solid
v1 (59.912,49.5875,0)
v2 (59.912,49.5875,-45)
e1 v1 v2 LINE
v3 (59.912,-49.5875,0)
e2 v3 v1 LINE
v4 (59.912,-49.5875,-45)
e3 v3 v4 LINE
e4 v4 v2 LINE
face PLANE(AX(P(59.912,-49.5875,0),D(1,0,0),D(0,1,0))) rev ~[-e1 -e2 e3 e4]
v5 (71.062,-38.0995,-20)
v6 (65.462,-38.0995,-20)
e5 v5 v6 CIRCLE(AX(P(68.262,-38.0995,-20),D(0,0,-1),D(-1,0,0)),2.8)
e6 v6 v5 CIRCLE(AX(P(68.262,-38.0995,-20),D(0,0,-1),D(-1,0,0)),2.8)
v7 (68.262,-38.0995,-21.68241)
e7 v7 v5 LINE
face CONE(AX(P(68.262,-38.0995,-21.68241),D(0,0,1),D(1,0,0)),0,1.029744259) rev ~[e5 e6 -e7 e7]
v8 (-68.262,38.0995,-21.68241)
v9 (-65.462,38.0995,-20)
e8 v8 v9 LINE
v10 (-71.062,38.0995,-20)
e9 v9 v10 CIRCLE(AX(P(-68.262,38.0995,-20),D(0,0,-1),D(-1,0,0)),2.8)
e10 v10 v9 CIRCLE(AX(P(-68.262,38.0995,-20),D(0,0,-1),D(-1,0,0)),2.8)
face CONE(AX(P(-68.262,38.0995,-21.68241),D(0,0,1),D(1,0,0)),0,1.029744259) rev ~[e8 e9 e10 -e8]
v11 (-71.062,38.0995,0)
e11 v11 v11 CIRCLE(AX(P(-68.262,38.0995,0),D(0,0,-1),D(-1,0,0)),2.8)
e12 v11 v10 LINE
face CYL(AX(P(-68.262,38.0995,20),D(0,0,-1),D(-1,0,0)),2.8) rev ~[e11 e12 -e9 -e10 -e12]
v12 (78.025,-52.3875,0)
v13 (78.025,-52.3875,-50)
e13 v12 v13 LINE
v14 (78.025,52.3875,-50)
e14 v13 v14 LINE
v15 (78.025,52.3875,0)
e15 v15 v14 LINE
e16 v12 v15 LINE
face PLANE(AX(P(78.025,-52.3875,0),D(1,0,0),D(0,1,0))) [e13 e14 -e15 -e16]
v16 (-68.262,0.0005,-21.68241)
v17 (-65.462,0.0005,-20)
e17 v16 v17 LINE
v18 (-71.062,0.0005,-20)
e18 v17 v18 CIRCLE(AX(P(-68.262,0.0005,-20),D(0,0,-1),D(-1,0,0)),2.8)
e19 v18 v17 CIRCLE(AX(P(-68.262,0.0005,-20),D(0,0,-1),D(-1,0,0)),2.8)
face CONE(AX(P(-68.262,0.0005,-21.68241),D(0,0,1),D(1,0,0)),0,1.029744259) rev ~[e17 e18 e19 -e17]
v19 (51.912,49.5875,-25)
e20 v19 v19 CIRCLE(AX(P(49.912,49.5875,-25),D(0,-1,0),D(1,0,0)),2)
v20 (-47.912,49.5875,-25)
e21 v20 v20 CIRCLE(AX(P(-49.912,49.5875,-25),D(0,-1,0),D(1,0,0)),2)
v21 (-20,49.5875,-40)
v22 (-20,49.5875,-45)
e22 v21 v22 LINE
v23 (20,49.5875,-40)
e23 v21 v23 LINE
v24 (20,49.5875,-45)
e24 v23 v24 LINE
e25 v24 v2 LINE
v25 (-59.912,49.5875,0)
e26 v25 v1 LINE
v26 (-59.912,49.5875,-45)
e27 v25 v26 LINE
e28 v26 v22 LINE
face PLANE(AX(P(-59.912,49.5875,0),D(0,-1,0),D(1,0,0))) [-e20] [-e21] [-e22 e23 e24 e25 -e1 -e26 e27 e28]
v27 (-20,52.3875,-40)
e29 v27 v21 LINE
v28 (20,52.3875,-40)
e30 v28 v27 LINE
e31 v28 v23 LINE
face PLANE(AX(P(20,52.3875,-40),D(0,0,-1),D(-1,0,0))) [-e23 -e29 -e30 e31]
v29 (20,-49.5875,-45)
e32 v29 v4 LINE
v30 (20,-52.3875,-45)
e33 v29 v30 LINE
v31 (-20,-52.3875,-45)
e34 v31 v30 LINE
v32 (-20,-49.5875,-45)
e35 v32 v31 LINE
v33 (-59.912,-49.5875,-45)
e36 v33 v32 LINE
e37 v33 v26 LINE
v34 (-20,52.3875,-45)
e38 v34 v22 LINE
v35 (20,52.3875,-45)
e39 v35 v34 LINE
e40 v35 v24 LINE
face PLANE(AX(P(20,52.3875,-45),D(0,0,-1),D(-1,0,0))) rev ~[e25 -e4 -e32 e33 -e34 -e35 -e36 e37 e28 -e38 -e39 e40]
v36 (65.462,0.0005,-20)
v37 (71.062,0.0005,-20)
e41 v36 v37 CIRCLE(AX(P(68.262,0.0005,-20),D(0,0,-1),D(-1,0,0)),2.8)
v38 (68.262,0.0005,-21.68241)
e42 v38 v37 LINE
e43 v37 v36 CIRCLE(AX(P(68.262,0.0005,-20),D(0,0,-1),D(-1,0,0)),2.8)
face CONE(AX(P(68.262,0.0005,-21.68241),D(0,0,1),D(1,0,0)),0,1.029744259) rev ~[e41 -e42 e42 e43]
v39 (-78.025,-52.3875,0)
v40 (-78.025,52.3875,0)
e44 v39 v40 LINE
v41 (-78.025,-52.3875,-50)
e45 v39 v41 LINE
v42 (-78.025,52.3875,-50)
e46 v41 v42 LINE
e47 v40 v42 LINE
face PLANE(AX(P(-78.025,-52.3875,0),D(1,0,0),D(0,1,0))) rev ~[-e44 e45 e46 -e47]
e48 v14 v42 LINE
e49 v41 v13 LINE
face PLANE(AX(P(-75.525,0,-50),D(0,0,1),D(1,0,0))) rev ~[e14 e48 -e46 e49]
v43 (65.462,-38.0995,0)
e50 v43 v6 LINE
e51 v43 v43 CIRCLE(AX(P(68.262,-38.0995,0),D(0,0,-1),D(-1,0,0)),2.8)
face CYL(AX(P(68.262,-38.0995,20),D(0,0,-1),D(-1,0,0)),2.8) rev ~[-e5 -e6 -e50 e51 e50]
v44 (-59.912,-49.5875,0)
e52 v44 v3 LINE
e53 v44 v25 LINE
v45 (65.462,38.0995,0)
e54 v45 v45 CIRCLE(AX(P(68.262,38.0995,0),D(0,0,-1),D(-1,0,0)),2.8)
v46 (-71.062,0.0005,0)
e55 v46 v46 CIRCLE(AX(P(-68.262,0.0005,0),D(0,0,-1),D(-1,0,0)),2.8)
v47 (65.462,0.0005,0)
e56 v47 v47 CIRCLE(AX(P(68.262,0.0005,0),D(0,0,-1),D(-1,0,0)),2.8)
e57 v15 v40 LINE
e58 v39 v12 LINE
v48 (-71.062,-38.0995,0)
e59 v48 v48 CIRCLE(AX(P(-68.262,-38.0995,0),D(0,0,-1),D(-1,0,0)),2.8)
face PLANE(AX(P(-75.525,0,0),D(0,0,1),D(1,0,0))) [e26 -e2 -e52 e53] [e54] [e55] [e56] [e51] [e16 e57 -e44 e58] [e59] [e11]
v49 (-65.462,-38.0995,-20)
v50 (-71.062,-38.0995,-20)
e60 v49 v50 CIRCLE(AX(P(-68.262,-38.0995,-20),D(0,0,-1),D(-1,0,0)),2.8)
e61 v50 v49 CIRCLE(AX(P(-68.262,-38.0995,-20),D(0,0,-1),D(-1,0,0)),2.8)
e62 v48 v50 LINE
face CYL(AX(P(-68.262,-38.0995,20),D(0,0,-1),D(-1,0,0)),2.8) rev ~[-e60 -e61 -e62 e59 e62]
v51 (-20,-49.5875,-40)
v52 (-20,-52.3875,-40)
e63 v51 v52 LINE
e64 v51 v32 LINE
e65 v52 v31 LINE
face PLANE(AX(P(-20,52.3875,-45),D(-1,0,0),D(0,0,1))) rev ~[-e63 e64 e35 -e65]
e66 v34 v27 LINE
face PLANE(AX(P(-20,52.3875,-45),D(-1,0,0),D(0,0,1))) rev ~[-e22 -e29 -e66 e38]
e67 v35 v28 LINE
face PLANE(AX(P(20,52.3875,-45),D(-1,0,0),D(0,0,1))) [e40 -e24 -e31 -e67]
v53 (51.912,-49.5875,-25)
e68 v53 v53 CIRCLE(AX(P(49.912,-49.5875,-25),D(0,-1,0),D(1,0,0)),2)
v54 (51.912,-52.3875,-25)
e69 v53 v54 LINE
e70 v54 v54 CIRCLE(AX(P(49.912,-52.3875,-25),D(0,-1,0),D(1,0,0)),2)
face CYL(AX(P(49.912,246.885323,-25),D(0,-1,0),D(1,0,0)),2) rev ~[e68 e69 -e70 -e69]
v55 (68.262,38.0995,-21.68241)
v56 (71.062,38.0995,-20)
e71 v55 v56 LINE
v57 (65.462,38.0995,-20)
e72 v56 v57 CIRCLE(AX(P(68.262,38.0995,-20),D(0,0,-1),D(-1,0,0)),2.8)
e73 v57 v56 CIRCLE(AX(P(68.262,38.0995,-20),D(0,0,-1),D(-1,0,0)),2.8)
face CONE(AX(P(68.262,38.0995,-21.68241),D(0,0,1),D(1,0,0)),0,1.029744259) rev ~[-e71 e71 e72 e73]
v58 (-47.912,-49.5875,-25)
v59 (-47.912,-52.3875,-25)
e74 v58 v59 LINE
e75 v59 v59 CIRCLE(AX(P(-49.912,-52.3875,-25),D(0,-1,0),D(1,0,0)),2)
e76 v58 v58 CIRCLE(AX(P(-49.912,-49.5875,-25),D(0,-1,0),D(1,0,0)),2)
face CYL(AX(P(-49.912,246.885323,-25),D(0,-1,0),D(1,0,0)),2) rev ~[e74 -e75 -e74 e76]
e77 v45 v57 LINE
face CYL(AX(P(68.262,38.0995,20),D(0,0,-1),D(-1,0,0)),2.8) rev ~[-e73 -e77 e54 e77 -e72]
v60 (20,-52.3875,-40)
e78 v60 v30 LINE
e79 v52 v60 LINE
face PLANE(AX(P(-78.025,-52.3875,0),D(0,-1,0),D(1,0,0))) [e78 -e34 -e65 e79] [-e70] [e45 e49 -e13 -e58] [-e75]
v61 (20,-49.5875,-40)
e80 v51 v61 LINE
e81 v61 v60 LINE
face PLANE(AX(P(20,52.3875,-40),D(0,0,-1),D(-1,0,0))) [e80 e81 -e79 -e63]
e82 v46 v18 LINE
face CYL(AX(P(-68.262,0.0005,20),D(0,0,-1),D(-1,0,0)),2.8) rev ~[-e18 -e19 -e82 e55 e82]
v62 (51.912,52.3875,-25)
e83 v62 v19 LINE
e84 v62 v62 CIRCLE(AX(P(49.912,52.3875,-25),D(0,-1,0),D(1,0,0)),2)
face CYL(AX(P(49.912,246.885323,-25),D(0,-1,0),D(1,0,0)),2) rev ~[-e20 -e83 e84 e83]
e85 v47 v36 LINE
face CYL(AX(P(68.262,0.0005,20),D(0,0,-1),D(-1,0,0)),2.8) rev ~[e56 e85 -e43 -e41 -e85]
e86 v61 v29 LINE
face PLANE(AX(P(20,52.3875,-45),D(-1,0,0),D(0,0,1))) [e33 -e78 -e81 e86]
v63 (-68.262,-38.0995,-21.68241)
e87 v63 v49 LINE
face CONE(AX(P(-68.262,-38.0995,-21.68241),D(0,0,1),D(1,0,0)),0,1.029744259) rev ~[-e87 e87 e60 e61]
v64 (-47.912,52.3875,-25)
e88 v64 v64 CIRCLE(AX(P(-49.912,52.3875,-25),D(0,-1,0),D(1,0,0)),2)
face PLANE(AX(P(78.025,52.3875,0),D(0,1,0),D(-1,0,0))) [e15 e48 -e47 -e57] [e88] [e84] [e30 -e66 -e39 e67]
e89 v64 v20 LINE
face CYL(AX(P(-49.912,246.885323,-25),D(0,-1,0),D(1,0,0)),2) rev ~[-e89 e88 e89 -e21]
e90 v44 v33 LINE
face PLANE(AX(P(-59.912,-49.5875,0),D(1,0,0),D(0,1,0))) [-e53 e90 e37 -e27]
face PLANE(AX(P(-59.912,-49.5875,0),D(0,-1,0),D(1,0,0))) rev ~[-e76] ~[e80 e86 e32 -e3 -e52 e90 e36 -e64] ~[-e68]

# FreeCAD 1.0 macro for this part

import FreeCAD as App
import Part
import Sketcher
Q = App.Units.Quantity


def add_polygon(sketch, points):
    """Adds a closed chain of lines whose ends are joined by coincident constraints."""
    first, n = sketch.GeometryCount, len(points)
    for a, b in zip(points, points[1:] + points[:1]):
        sketch.addGeometry(Part.LineSegment(App.Vector(*a, 0), App.Vector(*b, 0)), False)
    for i in range(n):
        sketch.addConstraint(Sketcher.Constraint("Coincident", first + i, 2, first + (i + 1) % n, 1))

doc = App.newDocument("Part")
body = doc.addObject("PartDesign::Body", "Body")

sketch1 = body.newObject("Sketcher::SketchObject", "Sketch")
sketch1.AttachmentSupport = (doc.getObject("XY_Plane"), [""])
sketch1.MapMode = "FlatFace"
add_polygon(sketch1, [(-78.025, 52.3875), (-78.025, -52.3875), (78.025, -52.3875), (78.025, 52.3875)])
sketch1.addConstraint(Sketcher.Constraint("Vertical", 0))
sketch1.addConstraint(Sketcher.Constraint("Horizontal", 1))
sketch1.addConstraint(Sketcher.Constraint("Vertical", 2))
sketch1.addConstraint(Sketcher.Constraint("Horizontal", 3))
sketch1.addConstraint(Sketcher.Constraint("Symmetric", 0, 2, 2, 2, -1, 1))
sketch1.addConstraint(Sketcher.Constraint("DistanceX", 1, 1, 1, 2, Q("156.05 mm")))
sketch1.addConstraint(Sketcher.Constraint("DistanceY", 0, 2, 0, 1, Q("104.775 mm")))
pad1 = body.newObject("PartDesign::Pad", "Pad")
pad1.Profile = sketch1
pad1.Length = 50
pad1.Reversed = True

sketch2 = body.newObject("Sketcher::SketchObject", "Sketch001")
sketch2.AttachmentSupport = (doc.getObject("XY_Plane"), [""])
sketch2.MapMode = "FlatFace"
add_polygon(sketch2, [(-59.912, 49.5875), (-59.912, -49.5875), (59.912, -49.5875), (59.912, 49.5875)])
sketch2.addConstraint(Sketcher.Constraint("Vertical", 0))
sketch2.addConstraint(Sketcher.Constraint("Horizontal", 1))
sketch2.addConstraint(Sketcher.Constraint("Vertical", 2))
sketch2.addConstraint(Sketcher.Constraint("Horizontal", 3))
sketch2.addConstraint(Sketcher.Constraint("Symmetric", 0, 2, 2, 2, -1, 1))
sketch2.addConstraint(Sketcher.Constraint("DistanceX", 1, 1, 1, 2, Q("119.824 mm")))
sketch2.addConstraint(Sketcher.Constraint("DistanceY", 0, 2, 0, 1, Q("99.175 mm")))
pocket1 = body.newObject("PartDesign::Pocket", "Pocket")
pocket1.Profile = sketch2
pocket1.Length = 45

sketch3 = body.newObject("Sketcher::SketchObject", "Sketch002")
sketch3.AttachmentSupport = (doc.getObject("XY_Plane"), [""])
sketch3.MapMode = "FlatFace"
sketch3.addGeometry(Part.Circle(App.Vector(-68.262, 38.0995, 0), App.Vector(0, 0, 1), 2.8), False)
sketch3.addGeometry(Part.Circle(App.Vector(-68.262, 0.0005, 0), App.Vector(0, 0, 1), 2.8), False)
sketch3.addGeometry(Part.Circle(App.Vector(-68.262, -38.0995, 0), App.Vector(0, 0, 1), 2.8), False)
sketch3.addGeometry(Part.Circle(App.Vector(68.262, -38.0995, 0), App.Vector(0, 0, 1), 2.8), False)
sketch3.addGeometry(Part.Circle(App.Vector(68.262, 38.0995, 0), App.Vector(0, 0, 1), 2.8), False)
sketch3.addGeometry(Part.Circle(App.Vector(68.262, 0.0005, 0), App.Vector(0, 0, 1), 2.8), False)
sketch3.addConstraint(Sketcher.Constraint("Equal", 0, 1))
sketch3.addConstraint(Sketcher.Constraint("Equal", 1, 2))
sketch3.addConstraint(Sketcher.Constraint("Equal", 2, 3))
sketch3.addConstraint(Sketcher.Constraint("Equal", 3, 4))
sketch3.addConstraint(Sketcher.Constraint("Equal", 4, 5))
sketch3.addConstraint(Sketcher.Constraint("Symmetric", 0, 3, 3, 3, -1, 1))
sketch3.addConstraint(Sketcher.Constraint("Symmetric", 2, 3, 4, 3, -1, 1))
sketch3.addConstraint(Sketcher.Constraint("Symmetric", 2, 3, 3, 3, -2))
sketch3.addConstraint(Sketcher.Constraint("Symmetric", 1, 3, 5, 3, -2))
sketch3.addConstraint(Sketcher.Constraint("Vertical", 0, 3, 1, 3))
sketch3.addConstraint(Sketcher.Constraint("Diameter", 0, Q("5.6 mm")))
sketch3.addConstraint(Sketcher.Constraint("DistanceY", 2, 3, 1, 3, Q("38.1 mm")))
sketch3.addConstraint(Sketcher.Constraint("DistanceX", 0, 3, -1, 1, Q("68.262 mm")))
sketch3.addConstraint(Sketcher.Constraint("DistanceY", 1, 3, 0, 3, Q("38.099 mm")))
doc.recompute()
hole = body.newObject("PartDesign::Hole", "Hole")
hole.Profile = sketch3
hole.ThreadType = "None"
hole.Diameter = 5.6
hole.DepthType = "Dimension"
hole.Depth = 20
hole.DrillPoint = "Angled"
hole.DrillPointAngle = 118

sketch4 = body.newObject("Sketcher::SketchObject", "Sketch003")
sketch4.AttachmentSupport = (doc.getObject("XZ_Plane"), [""])
sketch4.MapMode = "FlatFace"
sketch4.AttachmentOffset = App.Placement(App.Vector(0, 0, -52.3875), App.Rotation())
add_polygon(sketch4, [(20, -40), (20, -45), (-20, -45), (-20, -40)])
sketch4.addConstraint(Sketcher.Constraint("Vertical", 0))
sketch4.addConstraint(Sketcher.Constraint("Horizontal", 1))
sketch4.addConstraint(Sketcher.Constraint("Vertical", 2))
sketch4.addConstraint(Sketcher.Constraint("Horizontal", 3))
sketch4.addConstraint(Sketcher.Constraint("DistanceX", 1, 2, 1, 1, Q("40 mm")))
sketch4.addConstraint(Sketcher.Constraint("DistanceY", 0, 2, 0, 1, Q("5 mm")))
sketch4.addConstraint(Sketcher.Constraint("DistanceX", -1, 1, 0, 2, Q("20 mm")))
sketch4.addConstraint(Sketcher.Constraint("DistanceY", 0, 2, -1, 1, Q("45 mm")))
pocket2 = body.newObject("PartDesign::Pocket", "Pocket001")
pocket2.Profile = sketch4
pocket2.Type = "ThroughAll"
pocket2.Reversed = True

sketch5 = body.newObject("Sketcher::SketchObject", "Sketch004")
sketch5.AttachmentSupport = (doc.getObject("XZ_Plane"), [""])
sketch5.MapMode = "FlatFace"
sketch5.AttachmentOffset = App.Placement(App.Vector(0, 0, -52.3875), App.Rotation())
sketch5.addGeometry(Part.Circle(App.Vector(49.912, -25, 0), App.Vector(0, 0, 1), 2), False)
sketch5.addGeometry(Part.Circle(App.Vector(-49.912, -25, 0), App.Vector(0, 0, 1), 2), False)
sketch5.addConstraint(Sketcher.Constraint("Equal", 0, 1))
sketch5.addConstraint(Sketcher.Constraint("Symmetric", 0, 3, 1, 3, -2))
sketch5.addConstraint(Sketcher.Constraint("Diameter", 0, Q("4 mm")))
sketch5.addConstraint(Sketcher.Constraint("DistanceY", 0, 3, -1, 1, Q("25 mm")))
sketch5.addConstraint(Sketcher.Constraint("DistanceX", -1, 1, 0, 3, Q("49.912 mm")))
doc.recompute()
hole2 = body.newObject("PartDesign::Hole", "Hole001")
hole2.Profile = sketch5
hole2.ThreadType = "None"
hole2.Diameter = 4
hole2.DepthType = "ThroughAll"
hole2.Reversed = True

doc.recompute()
